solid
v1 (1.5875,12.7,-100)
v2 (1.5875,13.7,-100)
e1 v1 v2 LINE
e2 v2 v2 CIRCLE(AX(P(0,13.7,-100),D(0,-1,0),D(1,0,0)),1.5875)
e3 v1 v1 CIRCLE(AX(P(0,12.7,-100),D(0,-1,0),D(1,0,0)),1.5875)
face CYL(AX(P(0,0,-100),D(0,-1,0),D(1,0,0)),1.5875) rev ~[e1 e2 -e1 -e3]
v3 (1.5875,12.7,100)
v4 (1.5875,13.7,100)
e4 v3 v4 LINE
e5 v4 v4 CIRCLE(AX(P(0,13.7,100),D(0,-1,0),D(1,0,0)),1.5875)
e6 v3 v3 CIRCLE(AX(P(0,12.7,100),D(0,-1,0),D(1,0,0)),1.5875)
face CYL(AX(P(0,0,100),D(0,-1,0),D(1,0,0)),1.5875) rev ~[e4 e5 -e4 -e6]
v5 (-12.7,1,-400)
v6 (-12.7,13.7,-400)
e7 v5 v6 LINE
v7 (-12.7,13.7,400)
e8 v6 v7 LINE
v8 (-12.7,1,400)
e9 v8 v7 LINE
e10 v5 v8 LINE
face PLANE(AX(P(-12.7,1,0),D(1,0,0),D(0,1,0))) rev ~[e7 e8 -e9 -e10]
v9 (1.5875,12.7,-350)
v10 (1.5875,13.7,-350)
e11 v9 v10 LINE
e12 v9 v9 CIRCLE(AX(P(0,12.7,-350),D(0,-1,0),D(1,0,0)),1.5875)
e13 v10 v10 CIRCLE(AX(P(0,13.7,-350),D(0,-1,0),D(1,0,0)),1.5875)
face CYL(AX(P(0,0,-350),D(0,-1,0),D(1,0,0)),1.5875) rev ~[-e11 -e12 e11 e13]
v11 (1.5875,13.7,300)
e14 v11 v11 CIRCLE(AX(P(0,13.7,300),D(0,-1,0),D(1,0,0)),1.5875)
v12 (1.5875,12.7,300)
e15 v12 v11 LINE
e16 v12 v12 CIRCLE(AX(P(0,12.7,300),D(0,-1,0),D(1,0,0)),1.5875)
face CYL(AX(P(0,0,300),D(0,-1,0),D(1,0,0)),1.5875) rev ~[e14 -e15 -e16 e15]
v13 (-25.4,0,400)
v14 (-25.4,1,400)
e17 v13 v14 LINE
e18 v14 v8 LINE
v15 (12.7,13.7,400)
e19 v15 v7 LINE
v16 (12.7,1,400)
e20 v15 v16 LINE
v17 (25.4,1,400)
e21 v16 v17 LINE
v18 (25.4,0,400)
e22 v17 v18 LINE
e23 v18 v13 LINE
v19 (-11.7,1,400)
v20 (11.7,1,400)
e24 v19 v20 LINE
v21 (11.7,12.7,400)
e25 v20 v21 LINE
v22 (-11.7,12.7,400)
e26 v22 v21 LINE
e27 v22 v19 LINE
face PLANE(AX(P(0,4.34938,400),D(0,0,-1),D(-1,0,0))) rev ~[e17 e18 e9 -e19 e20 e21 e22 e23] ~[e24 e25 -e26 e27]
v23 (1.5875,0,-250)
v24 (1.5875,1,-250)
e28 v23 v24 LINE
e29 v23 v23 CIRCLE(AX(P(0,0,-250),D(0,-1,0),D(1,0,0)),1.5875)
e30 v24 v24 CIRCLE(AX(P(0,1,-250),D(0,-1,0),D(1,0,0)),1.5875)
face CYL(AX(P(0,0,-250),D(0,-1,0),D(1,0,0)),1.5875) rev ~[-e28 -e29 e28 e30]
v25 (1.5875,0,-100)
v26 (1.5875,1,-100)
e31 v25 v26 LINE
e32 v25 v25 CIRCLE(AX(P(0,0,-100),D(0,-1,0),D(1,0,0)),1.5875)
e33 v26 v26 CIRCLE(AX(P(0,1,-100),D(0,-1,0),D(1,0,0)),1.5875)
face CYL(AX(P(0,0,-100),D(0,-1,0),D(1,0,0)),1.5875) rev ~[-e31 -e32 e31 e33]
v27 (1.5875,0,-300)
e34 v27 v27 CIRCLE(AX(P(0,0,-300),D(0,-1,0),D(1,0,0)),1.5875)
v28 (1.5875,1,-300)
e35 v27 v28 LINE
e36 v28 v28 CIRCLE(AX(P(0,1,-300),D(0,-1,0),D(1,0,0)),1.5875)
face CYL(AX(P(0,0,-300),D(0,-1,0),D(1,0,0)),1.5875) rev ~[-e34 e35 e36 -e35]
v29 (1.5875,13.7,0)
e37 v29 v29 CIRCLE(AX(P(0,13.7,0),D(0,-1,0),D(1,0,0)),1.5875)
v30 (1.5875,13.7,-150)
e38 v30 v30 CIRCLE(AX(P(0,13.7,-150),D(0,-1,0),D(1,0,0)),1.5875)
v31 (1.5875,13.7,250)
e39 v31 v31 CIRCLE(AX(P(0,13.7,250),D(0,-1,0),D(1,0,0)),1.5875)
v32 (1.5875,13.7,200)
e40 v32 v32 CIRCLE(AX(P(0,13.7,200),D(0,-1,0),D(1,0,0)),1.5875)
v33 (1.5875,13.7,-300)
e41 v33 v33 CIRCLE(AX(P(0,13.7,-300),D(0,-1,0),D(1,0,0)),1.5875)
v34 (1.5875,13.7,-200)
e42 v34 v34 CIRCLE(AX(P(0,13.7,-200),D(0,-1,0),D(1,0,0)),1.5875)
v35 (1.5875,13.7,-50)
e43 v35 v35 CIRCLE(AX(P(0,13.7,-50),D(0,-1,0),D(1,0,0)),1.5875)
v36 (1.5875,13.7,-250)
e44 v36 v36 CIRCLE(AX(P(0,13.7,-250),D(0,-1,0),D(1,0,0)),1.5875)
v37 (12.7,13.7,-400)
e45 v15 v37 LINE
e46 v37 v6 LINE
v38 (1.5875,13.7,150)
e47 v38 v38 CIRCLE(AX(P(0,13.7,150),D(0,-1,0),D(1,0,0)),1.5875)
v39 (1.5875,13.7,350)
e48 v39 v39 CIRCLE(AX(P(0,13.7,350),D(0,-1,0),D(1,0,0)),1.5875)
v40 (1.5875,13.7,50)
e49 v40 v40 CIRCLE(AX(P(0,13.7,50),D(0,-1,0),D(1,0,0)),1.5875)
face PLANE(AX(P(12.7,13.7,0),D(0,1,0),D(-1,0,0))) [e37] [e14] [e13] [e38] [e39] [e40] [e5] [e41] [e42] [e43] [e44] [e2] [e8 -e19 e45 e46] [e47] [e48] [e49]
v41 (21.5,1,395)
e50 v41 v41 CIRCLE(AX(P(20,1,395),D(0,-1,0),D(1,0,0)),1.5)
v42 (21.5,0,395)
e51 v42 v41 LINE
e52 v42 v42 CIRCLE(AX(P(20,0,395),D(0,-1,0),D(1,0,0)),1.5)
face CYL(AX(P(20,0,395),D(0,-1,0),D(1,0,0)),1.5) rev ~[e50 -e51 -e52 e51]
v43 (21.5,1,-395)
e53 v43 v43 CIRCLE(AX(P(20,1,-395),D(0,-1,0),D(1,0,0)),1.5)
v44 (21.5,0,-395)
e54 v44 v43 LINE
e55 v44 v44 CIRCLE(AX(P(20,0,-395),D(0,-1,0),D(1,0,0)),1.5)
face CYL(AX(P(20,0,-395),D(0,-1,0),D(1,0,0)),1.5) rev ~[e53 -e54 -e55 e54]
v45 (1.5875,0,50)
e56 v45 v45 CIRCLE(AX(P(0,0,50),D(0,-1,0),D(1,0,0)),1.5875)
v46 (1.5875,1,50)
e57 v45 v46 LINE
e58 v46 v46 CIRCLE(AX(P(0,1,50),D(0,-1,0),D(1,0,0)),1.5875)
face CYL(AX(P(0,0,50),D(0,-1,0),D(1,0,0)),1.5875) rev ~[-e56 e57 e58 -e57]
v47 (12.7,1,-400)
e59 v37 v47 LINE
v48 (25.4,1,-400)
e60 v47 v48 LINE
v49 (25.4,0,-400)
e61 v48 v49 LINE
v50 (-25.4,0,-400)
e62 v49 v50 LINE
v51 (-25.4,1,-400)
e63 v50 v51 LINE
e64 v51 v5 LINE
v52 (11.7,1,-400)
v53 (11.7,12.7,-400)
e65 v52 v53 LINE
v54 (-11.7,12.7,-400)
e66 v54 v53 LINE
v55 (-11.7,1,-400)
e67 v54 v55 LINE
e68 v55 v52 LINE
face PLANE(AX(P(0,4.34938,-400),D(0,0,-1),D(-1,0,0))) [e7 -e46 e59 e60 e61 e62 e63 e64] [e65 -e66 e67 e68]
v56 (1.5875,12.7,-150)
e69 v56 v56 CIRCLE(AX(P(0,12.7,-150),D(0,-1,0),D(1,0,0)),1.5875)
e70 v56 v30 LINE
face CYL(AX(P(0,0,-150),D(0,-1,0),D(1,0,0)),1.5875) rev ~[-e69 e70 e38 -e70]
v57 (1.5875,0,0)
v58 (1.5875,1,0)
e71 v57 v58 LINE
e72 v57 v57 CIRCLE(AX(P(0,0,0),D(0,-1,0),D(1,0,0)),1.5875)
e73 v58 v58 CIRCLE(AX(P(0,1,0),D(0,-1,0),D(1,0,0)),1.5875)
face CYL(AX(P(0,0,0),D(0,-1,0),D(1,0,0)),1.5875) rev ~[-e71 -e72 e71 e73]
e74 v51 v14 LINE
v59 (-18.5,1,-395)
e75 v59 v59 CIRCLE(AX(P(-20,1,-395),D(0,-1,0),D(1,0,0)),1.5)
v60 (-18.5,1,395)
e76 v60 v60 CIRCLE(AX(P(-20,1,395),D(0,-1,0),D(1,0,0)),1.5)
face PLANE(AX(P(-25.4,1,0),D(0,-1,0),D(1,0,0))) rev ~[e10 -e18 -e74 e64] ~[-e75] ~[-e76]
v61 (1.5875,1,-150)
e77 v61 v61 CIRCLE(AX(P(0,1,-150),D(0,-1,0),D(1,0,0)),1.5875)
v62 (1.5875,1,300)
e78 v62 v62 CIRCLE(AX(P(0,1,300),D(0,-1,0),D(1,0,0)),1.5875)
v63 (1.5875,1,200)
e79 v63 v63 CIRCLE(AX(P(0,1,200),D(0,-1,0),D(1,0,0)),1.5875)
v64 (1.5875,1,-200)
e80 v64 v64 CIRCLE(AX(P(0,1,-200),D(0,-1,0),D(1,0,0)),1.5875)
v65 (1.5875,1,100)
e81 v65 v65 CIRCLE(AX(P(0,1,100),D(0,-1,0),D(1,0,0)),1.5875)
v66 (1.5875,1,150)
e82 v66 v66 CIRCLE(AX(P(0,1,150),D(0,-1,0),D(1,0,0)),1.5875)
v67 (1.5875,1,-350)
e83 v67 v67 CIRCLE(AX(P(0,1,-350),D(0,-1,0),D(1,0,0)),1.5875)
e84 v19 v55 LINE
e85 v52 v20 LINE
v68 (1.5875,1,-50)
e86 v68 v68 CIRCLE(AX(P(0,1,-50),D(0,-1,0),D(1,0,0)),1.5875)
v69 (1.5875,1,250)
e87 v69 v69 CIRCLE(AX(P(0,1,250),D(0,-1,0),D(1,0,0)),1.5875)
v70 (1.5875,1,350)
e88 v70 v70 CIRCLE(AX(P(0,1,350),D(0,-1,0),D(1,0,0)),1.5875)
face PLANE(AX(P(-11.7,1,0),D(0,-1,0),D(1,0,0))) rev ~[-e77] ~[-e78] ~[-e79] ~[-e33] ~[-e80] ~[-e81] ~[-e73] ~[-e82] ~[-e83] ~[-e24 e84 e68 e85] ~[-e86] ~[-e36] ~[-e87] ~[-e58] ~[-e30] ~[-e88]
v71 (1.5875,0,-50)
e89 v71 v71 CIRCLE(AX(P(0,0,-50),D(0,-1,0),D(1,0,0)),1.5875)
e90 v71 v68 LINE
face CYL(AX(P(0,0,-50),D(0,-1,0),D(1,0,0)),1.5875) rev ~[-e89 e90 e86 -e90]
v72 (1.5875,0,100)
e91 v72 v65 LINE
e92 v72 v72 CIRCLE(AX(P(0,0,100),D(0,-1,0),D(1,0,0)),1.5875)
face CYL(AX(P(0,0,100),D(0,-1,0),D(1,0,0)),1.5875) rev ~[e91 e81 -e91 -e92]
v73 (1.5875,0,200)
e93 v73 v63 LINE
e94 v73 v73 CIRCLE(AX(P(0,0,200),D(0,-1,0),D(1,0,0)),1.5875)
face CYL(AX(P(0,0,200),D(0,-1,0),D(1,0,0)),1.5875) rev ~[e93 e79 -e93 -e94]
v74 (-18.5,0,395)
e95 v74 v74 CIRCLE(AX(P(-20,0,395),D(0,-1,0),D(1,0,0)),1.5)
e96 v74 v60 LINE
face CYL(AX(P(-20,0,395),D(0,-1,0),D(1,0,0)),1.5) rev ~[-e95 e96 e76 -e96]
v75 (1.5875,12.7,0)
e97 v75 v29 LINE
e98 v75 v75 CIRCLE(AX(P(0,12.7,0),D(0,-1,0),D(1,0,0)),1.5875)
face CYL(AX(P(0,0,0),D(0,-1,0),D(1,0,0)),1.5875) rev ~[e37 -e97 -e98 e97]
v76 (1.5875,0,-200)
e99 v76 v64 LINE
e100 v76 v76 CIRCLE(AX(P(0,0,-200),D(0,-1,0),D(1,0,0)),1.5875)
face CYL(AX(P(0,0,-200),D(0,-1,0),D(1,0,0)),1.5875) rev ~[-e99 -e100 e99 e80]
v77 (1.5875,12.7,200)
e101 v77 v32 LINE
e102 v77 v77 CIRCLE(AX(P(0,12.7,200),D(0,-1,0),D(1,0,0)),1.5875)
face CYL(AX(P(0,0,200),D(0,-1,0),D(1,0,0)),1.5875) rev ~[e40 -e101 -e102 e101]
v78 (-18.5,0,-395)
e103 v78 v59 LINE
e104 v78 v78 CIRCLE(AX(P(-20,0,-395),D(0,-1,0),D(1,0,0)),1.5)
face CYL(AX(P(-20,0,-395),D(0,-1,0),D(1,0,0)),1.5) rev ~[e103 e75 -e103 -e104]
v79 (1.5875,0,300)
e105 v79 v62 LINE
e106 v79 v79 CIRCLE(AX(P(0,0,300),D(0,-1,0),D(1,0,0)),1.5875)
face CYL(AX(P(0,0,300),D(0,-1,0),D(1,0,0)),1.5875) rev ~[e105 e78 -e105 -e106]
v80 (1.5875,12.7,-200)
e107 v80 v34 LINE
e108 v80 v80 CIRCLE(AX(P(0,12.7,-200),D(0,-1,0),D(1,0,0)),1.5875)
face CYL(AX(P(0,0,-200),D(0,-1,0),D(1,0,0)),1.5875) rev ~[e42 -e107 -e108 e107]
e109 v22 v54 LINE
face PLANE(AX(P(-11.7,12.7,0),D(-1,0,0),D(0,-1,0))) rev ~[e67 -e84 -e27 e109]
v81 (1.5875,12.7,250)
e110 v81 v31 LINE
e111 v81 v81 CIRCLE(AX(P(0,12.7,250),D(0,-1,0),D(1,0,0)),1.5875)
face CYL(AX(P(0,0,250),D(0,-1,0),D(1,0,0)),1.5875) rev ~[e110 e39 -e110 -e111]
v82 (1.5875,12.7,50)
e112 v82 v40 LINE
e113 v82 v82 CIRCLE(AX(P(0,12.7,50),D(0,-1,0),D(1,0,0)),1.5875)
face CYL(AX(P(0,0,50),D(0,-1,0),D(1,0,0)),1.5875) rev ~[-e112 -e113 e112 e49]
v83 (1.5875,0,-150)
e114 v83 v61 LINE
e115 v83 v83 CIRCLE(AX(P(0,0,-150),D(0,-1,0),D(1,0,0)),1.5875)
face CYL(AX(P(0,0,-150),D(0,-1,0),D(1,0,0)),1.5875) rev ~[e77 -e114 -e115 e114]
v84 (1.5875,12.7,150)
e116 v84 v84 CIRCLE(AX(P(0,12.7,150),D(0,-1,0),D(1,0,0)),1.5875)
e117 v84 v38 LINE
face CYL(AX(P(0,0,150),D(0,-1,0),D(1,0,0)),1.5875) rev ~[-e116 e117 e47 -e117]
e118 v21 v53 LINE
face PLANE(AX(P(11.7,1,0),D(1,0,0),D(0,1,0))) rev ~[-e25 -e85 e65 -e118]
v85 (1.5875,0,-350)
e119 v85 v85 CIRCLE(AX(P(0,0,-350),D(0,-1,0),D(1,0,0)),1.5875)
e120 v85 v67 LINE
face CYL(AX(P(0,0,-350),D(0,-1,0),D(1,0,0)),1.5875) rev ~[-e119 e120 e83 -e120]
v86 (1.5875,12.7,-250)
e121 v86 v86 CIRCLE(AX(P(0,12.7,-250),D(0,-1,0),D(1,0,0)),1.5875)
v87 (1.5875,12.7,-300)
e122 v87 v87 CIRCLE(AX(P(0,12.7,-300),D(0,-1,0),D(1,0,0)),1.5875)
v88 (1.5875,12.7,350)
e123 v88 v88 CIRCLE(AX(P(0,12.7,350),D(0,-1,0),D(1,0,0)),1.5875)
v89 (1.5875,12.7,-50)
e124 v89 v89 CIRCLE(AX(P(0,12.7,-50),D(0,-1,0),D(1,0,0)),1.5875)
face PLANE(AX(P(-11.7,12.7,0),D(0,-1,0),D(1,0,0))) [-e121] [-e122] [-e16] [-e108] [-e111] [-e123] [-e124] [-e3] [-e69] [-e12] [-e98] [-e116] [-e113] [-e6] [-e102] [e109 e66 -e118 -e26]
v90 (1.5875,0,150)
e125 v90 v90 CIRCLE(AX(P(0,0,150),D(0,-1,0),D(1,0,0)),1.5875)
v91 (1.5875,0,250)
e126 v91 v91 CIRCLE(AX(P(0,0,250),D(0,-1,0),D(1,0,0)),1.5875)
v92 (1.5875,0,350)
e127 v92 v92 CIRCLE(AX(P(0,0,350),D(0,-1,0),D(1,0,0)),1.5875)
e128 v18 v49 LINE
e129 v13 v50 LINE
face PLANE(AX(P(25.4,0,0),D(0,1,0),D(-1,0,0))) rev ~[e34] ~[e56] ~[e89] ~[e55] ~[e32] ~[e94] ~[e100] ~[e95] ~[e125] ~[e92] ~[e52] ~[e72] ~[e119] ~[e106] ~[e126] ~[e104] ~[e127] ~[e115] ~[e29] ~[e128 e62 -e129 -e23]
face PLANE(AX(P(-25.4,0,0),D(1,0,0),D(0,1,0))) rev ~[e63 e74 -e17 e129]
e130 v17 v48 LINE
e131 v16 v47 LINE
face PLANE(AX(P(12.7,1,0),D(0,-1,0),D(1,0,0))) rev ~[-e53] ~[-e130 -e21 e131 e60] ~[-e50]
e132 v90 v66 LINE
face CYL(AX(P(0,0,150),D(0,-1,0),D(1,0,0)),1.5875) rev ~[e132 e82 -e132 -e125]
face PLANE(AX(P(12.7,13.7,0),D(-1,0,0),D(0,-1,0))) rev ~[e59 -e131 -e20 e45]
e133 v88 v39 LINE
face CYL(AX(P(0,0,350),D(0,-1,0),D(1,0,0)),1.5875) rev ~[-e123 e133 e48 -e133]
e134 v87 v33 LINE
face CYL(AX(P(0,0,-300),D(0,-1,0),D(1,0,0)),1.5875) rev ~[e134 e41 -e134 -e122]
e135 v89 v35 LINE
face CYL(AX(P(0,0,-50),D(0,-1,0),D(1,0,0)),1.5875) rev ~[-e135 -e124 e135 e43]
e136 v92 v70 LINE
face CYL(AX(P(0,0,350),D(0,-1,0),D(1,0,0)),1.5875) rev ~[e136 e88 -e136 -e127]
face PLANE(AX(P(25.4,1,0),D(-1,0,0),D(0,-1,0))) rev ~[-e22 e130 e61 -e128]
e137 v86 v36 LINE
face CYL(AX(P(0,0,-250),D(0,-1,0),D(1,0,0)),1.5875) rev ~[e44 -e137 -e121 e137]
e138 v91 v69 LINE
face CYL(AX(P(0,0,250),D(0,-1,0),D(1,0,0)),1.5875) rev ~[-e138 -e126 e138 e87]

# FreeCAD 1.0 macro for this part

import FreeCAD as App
import Part
import Sketcher
Q = App.Units.Quantity


def add_polygon(sketch, points):
    """Adds a closed chain of lines whose ends are joined by coincident constraints."""
    first, n = sketch.GeometryCount, len(points)
    for a, b in zip(points, points[1:] + points[:1]):
        sketch.addGeometry(Part.LineSegment(App.Vector(*a, 0), App.Vector(*b, 0)), False)
    for i in range(n):
        sketch.addConstraint(Sketcher.Constraint("Coincident", first + i, 2, first + (i + 1) % n, 1))

doc = App.newDocument("Part")
body = doc.addObject("PartDesign::Body", "Body")

# Sketch on XY plane
sketch1 = doc.addObject("Sketcher::SketchObject", "Sketch")
body.addObject(sketch1)
sketch1.AttachmentSupport = (doc.XY_Plane, [""])
sketch1.MapMode = "FlatFace"
add_polygon(sketch1, [(12.7, 13.7), (-12.7, 13.7), (-12.7, 1), (-25.4, 1), (-25.4, 0), (25.4, 0), (25.4, 1), (12.7, 1)])  # lines 0-7
add_polygon(sketch1, [(11.7, 12.7), (11.7, 1), (-11.7, 1), (-11.7, 12.7)])  # lines 8-11
sketch1.addConstraint(Sketcher.Constraint("Horizontal", 0))
sketch1.addConstraint(Sketcher.Constraint("Vertical", 1))
sketch1.addConstraint(Sketcher.Constraint("Horizontal", 2))
sketch1.addConstraint(Sketcher.Constraint("Vertical", 3))
sketch1.addConstraint(Sketcher.Constraint("Horizontal", 4))
sketch1.addConstraint(Sketcher.Constraint("Vertical", 5))
sketch1.addConstraint(Sketcher.Constraint("Horizontal", 6))
sketch1.addConstraint(Sketcher.Constraint("Vertical", 7))
sketch1.addConstraint(Sketcher.Constraint("Vertical", 8))
sketch1.addConstraint(Sketcher.Constraint("Horizontal", 9))
sketch1.addConstraint(Sketcher.Constraint("Vertical", 10))
sketch1.addConstraint(Sketcher.Constraint("Horizontal", 11))
sketch1.addConstraint(Sketcher.Constraint("Symmetric", 3, 2, 4, 2, -1, 1))
sketch1.addConstraint(Sketcher.Constraint("Symmetric", 1, 2, 6, 2, -2))
sketch1.addConstraint(Sketcher.Constraint("Horizontal", 6, 2, 8, 2))
sketch1.addConstraint(Sketcher.Constraint("Equal", 6, 1))
sketch1.addConstraint(Sketcher.Constraint("DistanceY", 3, 2, 3, 1, Q("1 mm")))
sketch1.addConstraint(Sketcher.Constraint("DistanceX", 0, 2, 0, 1, Q("25.4 mm")))
sketch1.addConstraint(Sketcher.Constraint("DistanceX", 2, 2, 2, 1, Q("12.7 mm")))
sketch1.addConstraint(Sketcher.Constraint("DistanceX", 9, 2, 9, 1, Q("23.4 mm")))
sketch1.addConstraint(Sketcher.Constraint("DistanceY", 8, 2, 8, 1, Q("11.7 mm")))
sketch1.addConstraint(Sketcher.Constraint("DistanceX", 8, 2, 6, 2, Q("1 mm")))
pad1 = doc.addObject("PartDesign::Pad", "Pad")
body.addObject(pad1)
pad1.Profile = sketch1
pad1.Length = 800
pad1.Midplane = True

# Sketch on XZ plane
sketch2 = doc.addObject("Sketcher::SketchObject", "Sketch001")
body.addObject(sketch2)
sketch2.AttachmentSupport = (doc.XZ_Plane, [""])
sketch2.MapMode = "FlatFace"
sketch2.addGeometry(Part.Circle(App.Vector(-20, 395, 0), App.Vector(0, 0, 1), 1.5), False)
sketch2.addGeometry(Part.Circle(App.Vector(20, 395, 0), App.Vector(0, 0, 1), 1.5), False)
sketch2.addGeometry(Part.Circle(App.Vector(20, -395, 0), App.Vector(0, 0, 1), 1.5), False)
sketch2.addGeometry(Part.Circle(App.Vector(-20, -395, 0), App.Vector(0, 0, 1), 1.5), False)
sketch2.addConstraint(Sketcher.Constraint("Equal", 0, 1))
sketch2.addConstraint(Sketcher.Constraint("Equal", 1, 2))
sketch2.addConstraint(Sketcher.Constraint("Equal", 2, 3))
sketch2.addConstraint(Sketcher.Constraint("Symmetric", 0, 3, 2, 3, -1, 1))
sketch2.addConstraint(Sketcher.Constraint("Symmetric", 1, 3, 3, 3, -1, 1))
sketch2.addConstraint(Sketcher.Constraint("Symmetric", 0, 3, 1, 3, -2))
sketch2.addConstraint(Sketcher.Constraint("Diameter", 0, Q("3 mm")))
sketch2.addConstraint(Sketcher.Constraint("DistanceX", 0, 3, -1, 1, Q("20 mm")))
sketch2.addConstraint(Sketcher.Constraint("DistanceY", -1, 1, 0, 3, Q("395 mm")))
pocket1 = doc.addObject("PartDesign::Pocket", "Pocket")
body.addObject(pocket1)
pocket1.Profile = sketch2
pocket1.Length = 10

# Sketch on XZ plane
sketch3 = doc.addObject("Sketcher::SketchObject", "Sketch002")
body.addObject(sketch3)
sketch3.AttachmentSupport = (doc.XZ_Plane, [""])
sketch3.MapMode = "FlatFace"
sketch3.addGeometry(Part.Circle(App.Vector(0, 0, 0), App.Vector(0, 0, 1), 1.6), False)
sketch3.addGeometry(Part.Circle(App.Vector(0, 50, 0), App.Vector(0, 0, 1), 1.6), False)
sketch3.addGeometry(Part.Circle(App.Vector(0, 100, 0), App.Vector(0, 0, 1), 1.6), False)
sketch3.addGeometry(Part.Circle(App.Vector(0, 150, 0), App.Vector(0, 0, 1), 1.6), False)
sketch3.addGeometry(Part.Circle(App.Vector(0, 200, 0), App.Vector(0, 0, 1), 1.6), False)
sketch3.addGeometry(Part.Circle(App.Vector(0, 250, 0), App.Vector(0, 0, 1), 1.6), False)
sketch3.addGeometry(Part.Circle(App.Vector(0, 300, 0), App.Vector(0, 0, 1), 1.6), False)
sketch3.addGeometry(Part.Circle(App.Vector(0, 350, 0), App.Vector(0, 0, 1), 1.6), False)
sketch3.addGeometry(Part.Circle(App.Vector(0, -50, 0), App.Vector(0, 0, 1), 1.6), False)
sketch3.addGeometry(Part.Circle(App.Vector(0, -100, 0), App.Vector(0, 0, 1), 1.6), False)
sketch3.addGeometry(Part.Circle(App.Vector(0, -150, 0), App.Vector(0, 0, 1), 1.6), False)
sketch3.addGeometry(Part.Circle(App.Vector(0, -200, 0), App.Vector(0, 0, 1), 1.6), False)
sketch3.addGeometry(Part.Circle(App.Vector(0, -250, 0), App.Vector(0, 0, 1), 1.6), False)
sketch3.addGeometry(Part.Circle(App.Vector(0, -300, 0), App.Vector(0, 0, 1), 1.6), False)
sketch3.addGeometry(Part.Circle(App.Vector(0, -350, 0), App.Vector(0, 0, 1), 1.6), False)
sketch3.addConstraint(Sketcher.Constraint("Coincident", 0, 3, -1, 1))
sketch3.addConstraint(Sketcher.Constraint("Equal", 0, 1))
sketch3.addConstraint(Sketcher.Constraint("Equal", 1, 2))
sketch3.addConstraint(Sketcher.Constraint("Equal", 2, 3))
sketch3.addConstraint(Sketcher.Constraint("Equal", 3, 4))
sketch3.addConstraint(Sketcher.Constraint("Equal", 4, 5))
sketch3.addConstraint(Sketcher.Constraint("Equal", 5, 6))
sketch3.addConstraint(Sketcher.Constraint("Equal", 6, 7))
sketch3.addConstraint(Sketcher.Constraint("Equal", 7, 8))
sketch3.addConstraint(Sketcher.Constraint("Equal", 8, 9))
sketch3.addConstraint(Sketcher.Constraint("Equal", 9, 10))
sketch3.addConstraint(Sketcher.Constraint("Equal", 10, 11))
sketch3.addConstraint(Sketcher.Constraint("Equal", 11, 12))
sketch3.addConstraint(Sketcher.Constraint("Equal", 12, 13))
sketch3.addConstraint(Sketcher.Constraint("Equal", 13, 14))
sketch3.addConstraint(Sketcher.Constraint("Symmetric", 1, 3, 8, 3, -1, 1))
sketch3.addConstraint(Sketcher.Constraint("Symmetric", 2, 3, 9, 3, -1, 1))
sketch3.addConstraint(Sketcher.Constraint("Symmetric", 3, 3, 10, 3, -1, 1))
sketch3.addConstraint(Sketcher.Constraint("Symmetric", 4, 3, 11, 3, -1, 1))
sketch3.addConstraint(Sketcher.Constraint("Symmetric", 5, 3, 12, 3, -1, 1))
sketch3.addConstraint(Sketcher.Constraint("Symmetric", 6, 3, 13, 3, -1, 1))
sketch3.addConstraint(Sketcher.Constraint("Symmetric", 7, 3, 14, 3, -1, 1))
sketch3.addConstraint(Sketcher.Constraint("PointOnObject", 1, 3, -2))
sketch3.addConstraint(Sketcher.Constraint("PointOnObject", 2, 3, -2))
sketch3.addConstraint(Sketcher.Constraint("PointOnObject", 3, 3, -2))
sketch3.addConstraint(Sketcher.Constraint("PointOnObject", 4, 3, -2))
sketch3.addConstraint(Sketcher.Constraint("PointOnObject", 5, 3, -2))
sketch3.addConstraint(Sketcher.Constraint("PointOnObject", 6, 3, -2))
sketch3.addConstraint(Sketcher.Constraint("PointOnObject", 7, 3, -2))
sketch3.addConstraint(Sketcher.Constraint("Diameter", 0, Q("3.175 mm")))
sketch3.addConstraint(Sketcher.Constraint("DistanceY", -1, 1, 1, 3, Q("50 mm")))
sketch3.addConstraint(Sketcher.Constraint("DistanceY", -1, 1, 2, 3, Q("100 mm")))
sketch3.addConstraint(Sketcher.Constraint("DistanceY", -1, 1, 3, 3, Q("150 mm")))
sketch3.addConstraint(Sketcher.Constraint("DistanceY", -1, 1, 4, 3, Q("200 mm")))
sketch3.addConstraint(Sketcher.Constraint("DistanceY", -1, 1, 5, 3, Q("250 mm")))
sketch3.addConstraint(Sketcher.Constraint("DistanceY", -1, 1, 6, 3, Q("300 mm")))
sketch3.addConstraint(Sketcher.Constraint("DistanceY", -1, 1, 7, 3, Q("350 mm")))
pocket2 = doc.addObject("PartDesign::Pocket", "Pocket001")
body.addObject(pocket2)
pocket2.Profile = sketch3
pocket2.Type = "ThroughAll"

doc.recompute()
